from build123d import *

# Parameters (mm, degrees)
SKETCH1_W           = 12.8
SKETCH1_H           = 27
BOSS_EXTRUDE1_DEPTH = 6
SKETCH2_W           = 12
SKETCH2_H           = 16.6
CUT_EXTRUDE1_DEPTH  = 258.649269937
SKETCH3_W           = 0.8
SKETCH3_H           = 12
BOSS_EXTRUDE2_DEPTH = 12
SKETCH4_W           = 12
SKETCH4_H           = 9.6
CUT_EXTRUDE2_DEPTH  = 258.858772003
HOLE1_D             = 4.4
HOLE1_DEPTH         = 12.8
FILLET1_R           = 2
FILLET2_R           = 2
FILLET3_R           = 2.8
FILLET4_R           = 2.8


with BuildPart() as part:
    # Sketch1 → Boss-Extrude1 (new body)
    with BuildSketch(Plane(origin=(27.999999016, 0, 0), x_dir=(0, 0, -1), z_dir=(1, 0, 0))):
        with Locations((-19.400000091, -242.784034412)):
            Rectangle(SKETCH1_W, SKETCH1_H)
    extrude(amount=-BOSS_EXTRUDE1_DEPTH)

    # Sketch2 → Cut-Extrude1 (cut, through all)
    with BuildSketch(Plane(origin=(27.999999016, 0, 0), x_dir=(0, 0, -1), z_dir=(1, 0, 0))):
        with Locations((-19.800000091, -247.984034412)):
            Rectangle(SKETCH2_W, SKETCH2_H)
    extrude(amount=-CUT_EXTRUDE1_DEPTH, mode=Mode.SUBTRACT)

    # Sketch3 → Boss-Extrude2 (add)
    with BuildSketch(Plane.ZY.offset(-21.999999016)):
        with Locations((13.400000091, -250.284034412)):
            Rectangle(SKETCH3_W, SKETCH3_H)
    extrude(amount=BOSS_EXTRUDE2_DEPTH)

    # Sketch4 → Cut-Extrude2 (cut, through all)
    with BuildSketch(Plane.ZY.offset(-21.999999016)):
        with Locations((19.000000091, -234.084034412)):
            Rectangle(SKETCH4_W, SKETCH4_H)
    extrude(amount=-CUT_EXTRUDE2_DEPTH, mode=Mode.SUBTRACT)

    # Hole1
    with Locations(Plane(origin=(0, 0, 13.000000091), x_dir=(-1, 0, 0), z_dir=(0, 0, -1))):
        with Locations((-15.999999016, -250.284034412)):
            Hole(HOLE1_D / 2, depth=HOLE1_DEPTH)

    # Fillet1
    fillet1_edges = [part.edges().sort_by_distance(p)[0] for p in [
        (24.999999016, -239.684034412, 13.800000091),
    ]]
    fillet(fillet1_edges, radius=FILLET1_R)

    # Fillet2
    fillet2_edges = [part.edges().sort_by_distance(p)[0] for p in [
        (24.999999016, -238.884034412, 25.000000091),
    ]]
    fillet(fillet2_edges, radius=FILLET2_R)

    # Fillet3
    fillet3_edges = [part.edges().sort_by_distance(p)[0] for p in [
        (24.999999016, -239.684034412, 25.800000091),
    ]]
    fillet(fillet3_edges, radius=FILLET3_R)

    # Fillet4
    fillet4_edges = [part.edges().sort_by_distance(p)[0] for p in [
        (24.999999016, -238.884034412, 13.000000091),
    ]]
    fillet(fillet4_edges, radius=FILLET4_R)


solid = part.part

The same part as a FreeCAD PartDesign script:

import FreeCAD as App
import Part
import Sketcher
Q = App.Units.Quantity


def edges_at(feature, points):
    """Names of the edges that pass closest to the given points."""
    edges = feature.Shape.Edges
    near = lambda p: min(range(len(edges)), key=lambda i: edges[i].distToShape(Part.Vertex(*p))[0])
    return sorted({f"Edge{near(p) + 1}" for p in points})


def add_polygon(sketch, points):
    """Adds a closed chain of lines whose ends are joined by coincident constraints."""
    first, n = sketch.GeometryCount, len(points)
    for a, b in zip(points, points[1:] + points[:1]):
        sketch.addGeometry(Part.LineSegment(App.Vector(*a, 0), App.Vector(*b, 0)), False)
    for i in range(n):
        sketch.addConstraint(Sketcher.Constraint("Coincident", first + i, 2, first + (i + 1) % n, 1))

doc = App.newDocument("Part")
body = doc.addObject("PartDesign::Body", "Body")

# Sketch on YZ plane
sketch1 = doc.addObject("Sketcher::SketchObject", "Sketch")
body.addObject(sketch1)
sketch1.AttachmentSupport = (doc.YZ_Plane, [""])
sketch1.MapMode = "FlatFace"
sketch1.AttachmentOffset = App.Placement(App.Vector(0, 0, 27.999999), App.Rotation())
add_polygon(sketch1, [(-229.284034, 25.8), (-256.284034, 25.8), (-256.284034, 13), (-229.284034, 13)])  # lines 0-3
sketch1.addConstraint([
    Sketcher.Constraint("Horizontal", 0),
    Sketcher.Constraint("Vertical", 1),
    Sketcher.Constraint("Horizontal", 2),
    Sketcher.Constraint("Vertical", 3),
    Sketcher.Constraint("DistanceX", 0, 2, 0, 1, Q("27 mm")),
    Sketcher.Constraint("DistanceY", 1, 2, 1, 1, Q("12.8 mm")),
    Sketcher.Constraint("DistanceY", -1, 1, 1, 2, Q("13 mm")),
    Sketcher.Constraint("DistanceX", 0, 2, -1, 1, Q("256.284034 mm")),
])
pad1 = doc.addObject("PartDesign::Pad", "Pad")
body.addObject(pad1)
pad1.Profile = sketch1
pad1.Length = 6
pad1.Reversed = True

# Sketch on YZ plane
sketch2 = doc.addObject("Sketcher::SketchObject", "Sketch001")
body.addObject(sketch2)
sketch2.AttachmentSupport = (doc.YZ_Plane, [""])
sketch2.MapMode = "FlatFace"
sketch2.AttachmentOffset = App.Placement(App.Vector(0, 0, 27.999999), App.Rotation())
add_polygon(sketch2, [(-239.684034, 25.8), (-256.284034, 25.8), (-256.284034, 13.8), (-239.684034, 13.8)])  # lines 0-3
sketch2.addConstraint([
    Sketcher.Constraint("Horizontal", 0),
    Sketcher.Constraint("Vertical", 1),
    Sketcher.Constraint("Horizontal", 2),
    Sketcher.Constraint("Vertical", 3),
    Sketcher.Constraint("DistanceY", 1, 2, 1, 1, Q("12 mm")),
    Sketcher.Constraint("DistanceX", 0, 2, 0, 1, Q("16.6 mm")),
    Sketcher.Constraint("DistanceY", -1, 1, 0, 2, Q("25.8 mm")),
    Sketcher.Constraint("DistanceX", 0, 2, -1, 1, Q("256.284034 mm")),
])
pocket1 = doc.addObject("PartDesign::Pocket", "Pocket")
body.addObject(pocket1)
pocket1.Profile = sketch2
pocket1.Type = "ThroughAll"

# Sketch on YZ plane
sketch3 = doc.addObject("Sketcher::SketchObject", "Sketch002")
body.addObject(sketch3)
sketch3.AttachmentSupport = (doc.YZ_Plane, [""])
sketch3.MapMode = "FlatFace"
sketch3.AttachmentOffset = App.Placement(App.Vector(0, 0, 21.999999), App.Rotation())
add_polygon(sketch3, [(-244.284034, 13), (-256.284034, 13), (-256.284034, 13.8), (-244.284034, 13.8)])  # lines 0-3
sketch3.addConstraint([
    Sketcher.Constraint("Horizontal", 0),
    Sketcher.Constraint("Vertical", 1),
    Sketcher.Constraint("Horizontal", 2),
    Sketcher.Constraint("Vertical", 3),
    Sketcher.Constraint("DistanceX", 0, 2, 0, 1, Q("12 mm")),
    Sketcher.Constraint("DistanceY", 1, 1, 1, 2, Q("0.8 mm")),
    Sketcher.Constraint("DistanceY", -1, 1, 0, 2, Q("13 mm")),
    Sketcher.Constraint("DistanceX", 0, 2, -1, 1, Q("256.284034 mm")),
])
pad2 = doc.addObject("PartDesign::Pad", "Pad001")
body.addObject(pad2)
pad2.Profile = sketch3
pad2.Length = 12
pad2.Reversed = True

# Sketch on YZ plane
sketch4 = doc.addObject("Sketcher::SketchObject", "Sketch003")
body.addObject(sketch4)
sketch4.AttachmentSupport = (doc.YZ_Plane, [""])
sketch4.MapMode = "FlatFace"
sketch4.AttachmentOffset = App.Placement(App.Vector(0, 0, 21.999999), App.Rotation())
add_polygon(sketch4, [(-229.284034, 13), (-238.884034, 13), (-238.884034, 25), (-229.284034, 25)])  # lines 0-3
sketch4.addConstraint([
    Sketcher.Constraint("Horizontal", 0),
    Sketcher.Constraint("Vertical", 1),
    Sketcher.Constraint("Horizontal", 2),
    Sketcher.Constraint("Vertical", 3),
    Sketcher.Constraint("DistanceY", 1, 1, 1, 2, Q("12 mm")),
    Sketcher.Constraint("DistanceX", 0, 2, 0, 1, Q("9.6 mm")),
    Sketcher.Constraint("DistanceY", -1, 1, 0, 2, Q("13 mm")),
    Sketcher.Constraint("DistanceX", 0, 2, -1, 1, Q("238.884034 mm")),
])
pocket2 = doc.addObject("PartDesign::Pocket", "Pocket001")
body.addObject(pocket2)
pocket2.Profile = sketch4
pocket2.Type = "ThroughAll"
pocket2.Reversed = True

# Sketch on XY plane
sketch5 = doc.addObject("Sketcher::SketchObject", "Sketch004")
body.addObject(sketch5)
sketch5.AttachmentSupport = (doc.XY_Plane, [""])
sketch5.MapMode = "FlatFace"
sketch5.AttachmentOffset = App.Placement(App.Vector(0, 0, 13), App.Rotation())
sketch5.addGeometry(Part.Circle(App.Vector(15.999999, -250.284034, 0), App.Vector(0, 0, 1), 2.2), False)
sketch5.addConstraint([
    Sketcher.Constraint("Diameter", 0, Q("4.4 mm")),
    Sketcher.Constraint("DistanceX", -1, 1, 0, 3, Q("15.999999 mm")),
    Sketcher.Constraint("DistanceY", 0, 3, -1, 1, Q("250.284034 mm")),
])
doc.recompute()
hole = doc.addObject("PartDesign::Hole", "Hole")
body.addObject(hole)
hole.Profile = sketch5
hole.ThreadType = "None"
hole.Diameter = 4.4
hole.DepthType = "Dimension"
hole.Depth = 12.8
hole.DrillPoint = "Flat"
hole.Reversed = True
doc.recompute()

fillet = doc.addObject("PartDesign::Fillet", "Fillet")
body.addObject(fillet)
fillet.Base = (hole, edges_at(hole, [(25, -239.684, 13.8)]))
fillet.Radius = 2
doc.recompute()

fillet2 = doc.addObject("PartDesign::Fillet", "Fillet001")
body.addObject(fillet2)
fillet2.Base = (fillet, edges_at(fillet, [(25, -238.884, 25)]))
fillet2.Radius = 2
doc.recompute()

fillet3 = doc.addObject("PartDesign::Fillet", "Fillet002")
body.addObject(fillet3)
fillet3.Base = (fillet2, edges_at(fillet2, [(25, -239.684, 25.8)]))
fillet3.Radius = 2.8
doc.recompute()

fillet4 = doc.addObject("PartDesign::Fillet", "Fillet003")
body.addObject(fillet4)
fillet4.Base = (fillet3, edges_at(fillet3, [(25, -238.884, 13)]))
fillet4.Radius = 2.8

doc.recompute()
